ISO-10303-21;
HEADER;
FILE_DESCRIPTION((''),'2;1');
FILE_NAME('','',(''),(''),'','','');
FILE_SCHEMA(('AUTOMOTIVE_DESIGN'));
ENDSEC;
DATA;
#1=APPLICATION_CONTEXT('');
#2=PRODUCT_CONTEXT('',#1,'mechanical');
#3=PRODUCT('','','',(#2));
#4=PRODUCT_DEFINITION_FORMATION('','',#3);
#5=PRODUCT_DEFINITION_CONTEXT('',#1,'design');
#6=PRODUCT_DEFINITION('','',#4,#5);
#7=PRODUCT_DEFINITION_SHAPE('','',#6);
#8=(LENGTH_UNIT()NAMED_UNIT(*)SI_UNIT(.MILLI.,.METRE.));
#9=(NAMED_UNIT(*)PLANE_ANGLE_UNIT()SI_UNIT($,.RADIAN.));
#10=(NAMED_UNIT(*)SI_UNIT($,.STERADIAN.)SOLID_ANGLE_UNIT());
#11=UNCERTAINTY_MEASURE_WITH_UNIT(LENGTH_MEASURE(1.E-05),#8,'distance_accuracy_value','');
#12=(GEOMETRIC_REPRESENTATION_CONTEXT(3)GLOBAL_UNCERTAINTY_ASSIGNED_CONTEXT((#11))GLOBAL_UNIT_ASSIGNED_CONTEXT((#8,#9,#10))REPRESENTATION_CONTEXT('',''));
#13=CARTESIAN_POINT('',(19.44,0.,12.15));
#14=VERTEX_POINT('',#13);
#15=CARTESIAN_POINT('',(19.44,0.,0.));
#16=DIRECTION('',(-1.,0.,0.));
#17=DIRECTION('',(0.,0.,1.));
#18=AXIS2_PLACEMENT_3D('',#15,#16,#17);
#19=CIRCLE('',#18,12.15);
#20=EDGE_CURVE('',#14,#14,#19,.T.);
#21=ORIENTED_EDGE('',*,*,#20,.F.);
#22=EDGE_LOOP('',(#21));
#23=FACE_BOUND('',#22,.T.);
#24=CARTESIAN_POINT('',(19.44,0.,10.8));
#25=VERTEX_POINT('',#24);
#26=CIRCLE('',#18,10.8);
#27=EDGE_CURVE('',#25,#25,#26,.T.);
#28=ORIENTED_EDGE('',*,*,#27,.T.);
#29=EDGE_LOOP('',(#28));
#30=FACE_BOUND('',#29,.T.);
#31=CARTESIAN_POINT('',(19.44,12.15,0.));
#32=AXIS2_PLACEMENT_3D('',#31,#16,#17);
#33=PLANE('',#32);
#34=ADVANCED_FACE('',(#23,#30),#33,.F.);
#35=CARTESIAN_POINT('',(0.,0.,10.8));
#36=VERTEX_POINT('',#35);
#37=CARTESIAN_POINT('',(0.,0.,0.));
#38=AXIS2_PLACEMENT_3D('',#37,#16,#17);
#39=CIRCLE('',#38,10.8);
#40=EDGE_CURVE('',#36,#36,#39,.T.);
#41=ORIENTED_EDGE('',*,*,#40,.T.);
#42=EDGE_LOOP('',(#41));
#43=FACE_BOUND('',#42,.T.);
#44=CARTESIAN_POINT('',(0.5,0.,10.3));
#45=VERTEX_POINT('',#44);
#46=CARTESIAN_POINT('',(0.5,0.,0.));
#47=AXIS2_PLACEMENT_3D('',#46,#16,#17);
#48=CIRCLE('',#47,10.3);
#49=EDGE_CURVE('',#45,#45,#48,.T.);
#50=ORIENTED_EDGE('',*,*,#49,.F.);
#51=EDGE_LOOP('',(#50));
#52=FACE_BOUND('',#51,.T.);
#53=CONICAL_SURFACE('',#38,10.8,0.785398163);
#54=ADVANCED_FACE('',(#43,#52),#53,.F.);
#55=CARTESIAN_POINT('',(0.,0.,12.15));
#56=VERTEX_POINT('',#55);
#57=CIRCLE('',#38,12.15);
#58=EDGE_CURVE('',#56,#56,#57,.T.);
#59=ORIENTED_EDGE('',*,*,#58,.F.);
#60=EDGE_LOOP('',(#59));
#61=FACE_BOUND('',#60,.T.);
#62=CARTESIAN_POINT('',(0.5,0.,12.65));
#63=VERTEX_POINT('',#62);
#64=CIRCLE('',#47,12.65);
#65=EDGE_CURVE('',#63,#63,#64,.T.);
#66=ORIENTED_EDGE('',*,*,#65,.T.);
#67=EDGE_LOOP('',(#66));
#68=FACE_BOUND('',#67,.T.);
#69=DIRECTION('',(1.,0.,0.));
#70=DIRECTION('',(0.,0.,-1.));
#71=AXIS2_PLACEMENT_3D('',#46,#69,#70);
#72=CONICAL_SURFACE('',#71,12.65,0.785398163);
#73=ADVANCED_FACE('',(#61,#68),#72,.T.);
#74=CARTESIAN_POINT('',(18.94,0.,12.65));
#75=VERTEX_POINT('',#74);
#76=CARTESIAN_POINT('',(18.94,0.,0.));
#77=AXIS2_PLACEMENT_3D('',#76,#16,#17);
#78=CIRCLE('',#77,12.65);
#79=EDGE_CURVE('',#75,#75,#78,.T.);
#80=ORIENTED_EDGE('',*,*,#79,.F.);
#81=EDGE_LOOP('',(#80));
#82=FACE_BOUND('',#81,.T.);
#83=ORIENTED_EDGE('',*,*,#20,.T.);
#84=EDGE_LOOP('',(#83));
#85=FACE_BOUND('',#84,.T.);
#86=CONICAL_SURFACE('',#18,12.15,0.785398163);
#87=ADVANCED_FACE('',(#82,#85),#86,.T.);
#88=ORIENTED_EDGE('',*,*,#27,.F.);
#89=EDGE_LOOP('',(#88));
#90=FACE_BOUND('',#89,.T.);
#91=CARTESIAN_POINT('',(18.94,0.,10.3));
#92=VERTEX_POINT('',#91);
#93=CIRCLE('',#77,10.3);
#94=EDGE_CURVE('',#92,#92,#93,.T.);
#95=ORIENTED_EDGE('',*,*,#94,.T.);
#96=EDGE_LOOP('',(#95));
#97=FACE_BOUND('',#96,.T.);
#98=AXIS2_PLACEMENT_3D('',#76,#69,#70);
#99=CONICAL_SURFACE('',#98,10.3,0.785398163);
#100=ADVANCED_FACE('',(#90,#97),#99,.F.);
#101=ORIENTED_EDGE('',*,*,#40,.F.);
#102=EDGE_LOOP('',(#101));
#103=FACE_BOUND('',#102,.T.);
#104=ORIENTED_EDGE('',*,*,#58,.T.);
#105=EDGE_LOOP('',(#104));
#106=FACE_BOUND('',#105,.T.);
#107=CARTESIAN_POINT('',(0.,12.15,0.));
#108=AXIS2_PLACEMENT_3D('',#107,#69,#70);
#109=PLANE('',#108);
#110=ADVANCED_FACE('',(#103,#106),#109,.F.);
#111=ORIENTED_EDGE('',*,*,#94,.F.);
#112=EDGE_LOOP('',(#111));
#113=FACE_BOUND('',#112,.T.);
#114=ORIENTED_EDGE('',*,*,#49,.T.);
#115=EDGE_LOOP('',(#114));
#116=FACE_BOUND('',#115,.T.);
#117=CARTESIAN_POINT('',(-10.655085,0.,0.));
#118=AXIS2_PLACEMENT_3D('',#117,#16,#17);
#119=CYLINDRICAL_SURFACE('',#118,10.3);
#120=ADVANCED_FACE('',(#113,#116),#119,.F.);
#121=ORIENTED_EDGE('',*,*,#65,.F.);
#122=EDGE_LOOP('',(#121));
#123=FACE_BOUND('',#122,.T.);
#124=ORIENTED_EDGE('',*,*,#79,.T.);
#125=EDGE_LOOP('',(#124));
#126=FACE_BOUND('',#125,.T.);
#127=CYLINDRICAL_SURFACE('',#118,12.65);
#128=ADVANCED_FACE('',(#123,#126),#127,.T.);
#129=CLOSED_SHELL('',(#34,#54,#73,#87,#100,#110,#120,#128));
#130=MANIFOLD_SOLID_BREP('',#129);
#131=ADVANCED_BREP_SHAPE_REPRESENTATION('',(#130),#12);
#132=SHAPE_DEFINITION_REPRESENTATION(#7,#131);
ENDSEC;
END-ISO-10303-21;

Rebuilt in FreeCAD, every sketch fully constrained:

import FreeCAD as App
import Part
import Sketcher
from FreeCAD import Vector

doc = App.newDocument("Part")
body = doc.addObject("PartDesign::Body", "Body")

# Sketch on XY plane
sketch1 = body.newObject("Sketcher::SketchObject", "Sketch")
sketch1.AttachmentSupport = (doc.getObject("XY_Plane"), [""])
sketch1.MapMode = "FlatFace"
sketch1.addGeometry([
    Part.LineSegment(Vector(0.5, 12.7, 0), Vector(0, 12.2, 0)),  # 0
    Part.LineSegment(Vector(0, 12.2, 0), Vector(0, 10.8, 0)),  # 1
    Part.LineSegment(Vector(0, 10.8, 0), Vector(0.5, 10.3, 0)),  # 2
    Part.LineSegment(Vector(0.5, 10.3, 0), Vector(18.9, 10.3, 0)),  # 3
    Part.LineSegment(Vector(18.9, 10.3, 0), Vector(19.4, 10.8, 0)),  # 4
    Part.LineSegment(Vector(19.4, 10.8, 0), Vector(19.4, 12.2, 0)),  # 5
    Part.LineSegment(Vector(19.4, 12.2, 0), Vector(18.9, 12.7, 0)),  # 6
    Part.LineSegment(Vector(18.9, 12.7, 0), Vector(0.5, 12.7, 0)),  # 7
], False)
sketch1.addConstraint([
    Sketcher.Constraint("Coincident", 0, 2, 1, 1),
    Sketcher.Constraint("Coincident", 1, 2, 2, 1),
    Sketcher.Constraint("Coincident", 2, 2, 3, 1),
    Sketcher.Constraint("Coincident", 3, 2, 4, 1),
    Sketcher.Constraint("Coincident", 4, 2, 5, 1),
    Sketcher.Constraint("Coincident", 5, 2, 6, 1),
    Sketcher.Constraint("Coincident", 6, 2, 7, 1),
    Sketcher.Constraint("Coincident", 7, 2, 0, 1),
    Sketcher.Constraint("Vertical", 1),
    Sketcher.Constraint("Horizontal", 3),
    Sketcher.Constraint("Vertical", 5),
    Sketcher.Constraint("Horizontal", 7),
    Sketcher.Constraint("PointOnObject", 0, 2, -2),
    Sketcher.Constraint("Perpendicular", 0, 2),
    Sketcher.Constraint("Perpendicular", 2, 4),
    Sketcher.Constraint("Perpendicular", 4, 6),
    Sketcher.Constraint("Horizontal", 1, 2, 4, 2),
    Sketcher.Constraint("Horizontal", 0, 2, 5, 2),
    Sketcher.Constraint("Vertical", 3, 2, 6, 2),
    Sketcher.Constraint("Vertical", 2, 2, 7, 2),
    Sketcher.Constraint("DistanceX", 3, 1, 3, 2, 18.44),
    Sketcher.Constraint("DistanceY", 1, 2, 1, 1, 1.35),
    Sketcher.Constraint("DistanceY", -1, 1, 1, 2, 10.8),
    Sketcher.Constraint("DistanceX", -1, 1, 2, 2, 0.5),
])
revolution = body.newObject("PartDesign::Revolution", "Revolution")
revolution.Profile = sketch1
revolution.ReferenceAxis = (sketch1, ["H_Axis"])
revolution.Angle = 360

doc.recompute()
